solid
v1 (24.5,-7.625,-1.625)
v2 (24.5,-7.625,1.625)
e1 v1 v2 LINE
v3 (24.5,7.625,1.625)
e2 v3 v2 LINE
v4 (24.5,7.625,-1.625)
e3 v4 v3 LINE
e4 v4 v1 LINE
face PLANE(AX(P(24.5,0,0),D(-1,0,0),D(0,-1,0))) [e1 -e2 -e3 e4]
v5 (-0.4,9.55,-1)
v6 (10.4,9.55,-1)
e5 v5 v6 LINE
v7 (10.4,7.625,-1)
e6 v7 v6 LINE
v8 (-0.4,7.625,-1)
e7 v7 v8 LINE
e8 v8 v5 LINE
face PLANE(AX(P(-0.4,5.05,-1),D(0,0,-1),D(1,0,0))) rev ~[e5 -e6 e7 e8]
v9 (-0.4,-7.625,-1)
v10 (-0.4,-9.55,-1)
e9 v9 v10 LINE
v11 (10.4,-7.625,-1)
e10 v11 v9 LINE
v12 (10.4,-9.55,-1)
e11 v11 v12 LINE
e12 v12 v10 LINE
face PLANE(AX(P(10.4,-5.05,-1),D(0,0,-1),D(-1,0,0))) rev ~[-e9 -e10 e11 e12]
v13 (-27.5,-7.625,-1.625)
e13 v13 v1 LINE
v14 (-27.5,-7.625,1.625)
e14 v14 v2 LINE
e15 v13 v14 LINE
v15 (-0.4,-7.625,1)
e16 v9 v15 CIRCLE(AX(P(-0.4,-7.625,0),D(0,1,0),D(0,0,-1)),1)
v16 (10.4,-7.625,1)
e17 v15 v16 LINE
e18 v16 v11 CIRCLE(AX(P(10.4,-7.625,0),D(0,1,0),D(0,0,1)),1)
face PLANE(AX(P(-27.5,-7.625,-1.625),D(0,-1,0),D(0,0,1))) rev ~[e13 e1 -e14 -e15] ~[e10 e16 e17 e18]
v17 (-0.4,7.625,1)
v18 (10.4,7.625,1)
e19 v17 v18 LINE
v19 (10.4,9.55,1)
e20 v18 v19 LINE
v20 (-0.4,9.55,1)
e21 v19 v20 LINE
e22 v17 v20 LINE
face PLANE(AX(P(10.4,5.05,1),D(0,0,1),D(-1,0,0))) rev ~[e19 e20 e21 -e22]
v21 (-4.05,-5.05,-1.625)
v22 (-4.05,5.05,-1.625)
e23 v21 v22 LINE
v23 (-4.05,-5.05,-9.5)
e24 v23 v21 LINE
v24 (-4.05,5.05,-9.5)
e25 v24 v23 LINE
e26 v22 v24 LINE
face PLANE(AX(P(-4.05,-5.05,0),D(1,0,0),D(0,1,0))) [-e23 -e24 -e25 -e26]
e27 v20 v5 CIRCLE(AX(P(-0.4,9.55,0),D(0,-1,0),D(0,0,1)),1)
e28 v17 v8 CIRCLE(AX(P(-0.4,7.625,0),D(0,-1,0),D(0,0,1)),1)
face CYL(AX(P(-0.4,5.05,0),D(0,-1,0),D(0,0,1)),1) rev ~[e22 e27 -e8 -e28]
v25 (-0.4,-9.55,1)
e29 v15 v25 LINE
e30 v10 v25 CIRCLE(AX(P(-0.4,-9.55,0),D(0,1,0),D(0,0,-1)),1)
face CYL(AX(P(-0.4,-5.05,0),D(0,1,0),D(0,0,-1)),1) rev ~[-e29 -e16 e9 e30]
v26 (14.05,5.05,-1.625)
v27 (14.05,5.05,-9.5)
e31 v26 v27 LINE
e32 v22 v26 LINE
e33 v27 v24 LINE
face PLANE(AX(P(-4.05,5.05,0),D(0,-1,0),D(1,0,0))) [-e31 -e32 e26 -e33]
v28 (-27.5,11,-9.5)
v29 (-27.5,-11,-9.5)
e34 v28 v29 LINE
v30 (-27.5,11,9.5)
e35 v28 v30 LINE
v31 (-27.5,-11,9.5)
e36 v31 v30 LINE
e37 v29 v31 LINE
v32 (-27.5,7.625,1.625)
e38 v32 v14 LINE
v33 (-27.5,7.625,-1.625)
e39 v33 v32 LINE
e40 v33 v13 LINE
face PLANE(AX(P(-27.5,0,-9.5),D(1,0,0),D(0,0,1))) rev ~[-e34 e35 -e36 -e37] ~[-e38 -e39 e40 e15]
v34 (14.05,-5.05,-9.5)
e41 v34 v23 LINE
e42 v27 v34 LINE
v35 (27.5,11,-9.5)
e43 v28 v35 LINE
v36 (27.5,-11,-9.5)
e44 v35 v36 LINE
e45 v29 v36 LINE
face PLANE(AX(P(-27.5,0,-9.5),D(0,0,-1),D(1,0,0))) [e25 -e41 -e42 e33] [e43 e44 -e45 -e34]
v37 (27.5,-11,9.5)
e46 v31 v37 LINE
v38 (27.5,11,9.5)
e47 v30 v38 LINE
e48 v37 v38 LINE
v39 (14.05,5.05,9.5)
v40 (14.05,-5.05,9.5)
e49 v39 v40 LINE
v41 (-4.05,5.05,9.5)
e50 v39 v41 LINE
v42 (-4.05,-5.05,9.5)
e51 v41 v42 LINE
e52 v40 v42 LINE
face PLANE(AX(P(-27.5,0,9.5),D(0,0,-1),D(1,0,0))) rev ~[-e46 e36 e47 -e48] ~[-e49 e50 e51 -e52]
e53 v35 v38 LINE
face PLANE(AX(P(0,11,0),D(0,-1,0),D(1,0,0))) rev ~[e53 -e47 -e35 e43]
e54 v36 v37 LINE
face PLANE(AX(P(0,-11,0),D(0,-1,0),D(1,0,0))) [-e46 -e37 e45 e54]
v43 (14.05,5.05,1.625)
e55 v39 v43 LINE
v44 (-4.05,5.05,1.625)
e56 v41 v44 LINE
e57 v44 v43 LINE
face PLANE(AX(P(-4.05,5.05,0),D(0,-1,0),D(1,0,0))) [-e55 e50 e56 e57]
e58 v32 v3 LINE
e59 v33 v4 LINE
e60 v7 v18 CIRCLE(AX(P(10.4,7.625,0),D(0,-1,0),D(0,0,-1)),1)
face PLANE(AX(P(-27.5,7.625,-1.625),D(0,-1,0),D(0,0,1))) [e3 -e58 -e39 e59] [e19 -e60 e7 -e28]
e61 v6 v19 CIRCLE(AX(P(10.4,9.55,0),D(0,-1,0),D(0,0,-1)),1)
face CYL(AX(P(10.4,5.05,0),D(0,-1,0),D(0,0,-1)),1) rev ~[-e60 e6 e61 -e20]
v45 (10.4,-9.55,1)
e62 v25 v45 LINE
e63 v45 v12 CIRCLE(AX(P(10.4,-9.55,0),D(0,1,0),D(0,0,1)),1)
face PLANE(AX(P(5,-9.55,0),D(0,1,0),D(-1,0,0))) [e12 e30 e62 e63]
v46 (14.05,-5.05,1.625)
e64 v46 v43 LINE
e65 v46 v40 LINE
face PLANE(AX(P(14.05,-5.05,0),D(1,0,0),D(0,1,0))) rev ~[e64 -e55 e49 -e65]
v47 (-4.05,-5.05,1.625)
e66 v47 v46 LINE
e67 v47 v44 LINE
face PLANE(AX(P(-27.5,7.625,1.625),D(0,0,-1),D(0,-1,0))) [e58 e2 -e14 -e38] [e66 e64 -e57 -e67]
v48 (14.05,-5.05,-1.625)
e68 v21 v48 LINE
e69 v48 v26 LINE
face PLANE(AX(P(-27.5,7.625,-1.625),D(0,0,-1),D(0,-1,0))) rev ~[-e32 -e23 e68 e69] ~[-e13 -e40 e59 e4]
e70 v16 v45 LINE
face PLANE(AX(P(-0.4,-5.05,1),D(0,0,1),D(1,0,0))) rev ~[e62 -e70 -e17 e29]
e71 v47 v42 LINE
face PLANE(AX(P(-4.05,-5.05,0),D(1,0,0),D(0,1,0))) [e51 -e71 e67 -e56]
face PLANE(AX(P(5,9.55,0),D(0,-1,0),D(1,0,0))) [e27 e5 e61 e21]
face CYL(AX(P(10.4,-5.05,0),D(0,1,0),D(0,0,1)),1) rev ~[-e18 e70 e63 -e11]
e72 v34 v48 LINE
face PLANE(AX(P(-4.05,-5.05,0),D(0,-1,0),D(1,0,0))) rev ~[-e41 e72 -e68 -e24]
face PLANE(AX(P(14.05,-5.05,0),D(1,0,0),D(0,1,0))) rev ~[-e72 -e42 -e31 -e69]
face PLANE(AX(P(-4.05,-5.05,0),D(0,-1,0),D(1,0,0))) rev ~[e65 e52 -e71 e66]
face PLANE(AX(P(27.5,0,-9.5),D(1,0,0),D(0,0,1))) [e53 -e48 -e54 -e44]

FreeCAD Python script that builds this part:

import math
import FreeCAD as App
import Part
import Sketcher
from FreeCAD import Vector
Q = App.Units.Quantity

doc = App.newDocument("Part")
body = doc.addObject("PartDesign::Body", "Body")

# Sketch on XZ plane
sketch1 = body.newObject("Sketcher::SketchObject", "Sketch")
sketch1.AttachmentSupport = (doc.getObject("XZ_Plane"), [""])
sketch1.MapMode = "FlatFace"
sketch1.addGeometry([
    Part.LineSegment(Vector(-28, 10, 0), Vector(-28, -10, 0)),
    Part.LineSegment(Vector(-28, -10, 0), Vector(28, -10, 0)),
    Part.LineSegment(Vector(28, -10, 0), Vector(28, 10, 0)),
    Part.LineSegment(Vector(28, 10, 0), Vector(-28, 10, 0)),
], False)
sketch1.addConstraint([
    Sketcher.Constraint("Coincident", 0, 2, 1, 1),
    Sketcher.Constraint("Coincident", 1, 2, 2, 1),
    Sketcher.Constraint("Coincident", 2, 2, 3, 1),
    Sketcher.Constraint("Coincident", 3, 2, 0, 1),
    Sketcher.Constraint("Vertical", 0),
    Sketcher.Constraint("Horizontal", 1),
    Sketcher.Constraint("Vertical", 2),
    Sketcher.Constraint("Horizontal", 3),
    Sketcher.Constraint("Symmetric", 0, 2, 2, 2, -1, 1),
    Sketcher.Constraint("DistanceX", 1, 1, 1, 2, Q("55 mm")),
    Sketcher.Constraint("DistanceY", 0, 2, 0, 1, Q("19 mm")),
])
pad1 = body.newObject("PartDesign::Pad", "Pad")
pad1.Profile = sketch1
pad1.Length = 22
pad1.Midplane = True

# Sketch on XY plane
sketch2 = body.newObject("Sketcher::SketchObject", "Sketch001")
sketch2.AttachmentSupport = (doc.getObject("XY_Plane"), [""])
sketch2.MapMode = "FlatFace"
sketch2.addGeometry([
    Part.LineSegment(Vector(-4, 5, 0), Vector(-4, -5, 0)),
    Part.LineSegment(Vector(-4, -5, 0), Vector(14, -5, 0)),
    Part.LineSegment(Vector(14, -5, 0), Vector(14, 5, 0)),
    Part.LineSegment(Vector(14, 5, 0), Vector(-4, 5, 0)),
], False)
sketch2.addConstraint([
    Sketcher.Constraint("Coincident", 0, 2, 1, 1),
    Sketcher.Constraint("Coincident", 1, 2, 2, 1),
    Sketcher.Constraint("Coincident", 2, 2, 3, 1),
    Sketcher.Constraint("Coincident", 3, 2, 0, 1),
    Sketcher.Constraint("Vertical", 0),
    Sketcher.Constraint("Horizontal", 1),
    Sketcher.Constraint("Vertical", 2),
    Sketcher.Constraint("Horizontal", 3),
    Sketcher.Constraint("DistanceX", 1, 1, 1, 2, Q("18.1 mm")),
    Sketcher.Constraint("DistanceY", 0, 2, 0, 1, Q("10.1 mm")),
    Sketcher.Constraint("DistanceX", 0, 2, -1, 1, Q("4.05 mm")),
    Sketcher.Constraint("DistanceY", 0, 2, -1, 1, Q("5.05 mm")),
])
pocket1 = body.newObject("PartDesign::Pocket", "Pocket")
pocket1.Profile = sketch2
pocket1.Length = 22
pocket1.Midplane = True

# Sketch on XZ plane
sketch3 = body.newObject("Sketcher::SketchObject", "Sketch002")
sketch3.AttachmentSupport = (doc.getObject("XZ_Plane"), [""])
sketch3.MapMode = "FlatFace"
sketch3.AttachmentOffset = App.Placement(Vector(0, 0, -5.05), App.Rotation())
sketch3.addGeometry([
    Part.LineSegment(Vector(10.4, 1, 0), Vector(-0.4, 1, 0)),
    Part.ArcOfCircle(Part.Circle(Vector(-0.4, 0, 0), Vector(0, 0, 1), 1), math.radians(90), math.radians(270)),
    Part.LineSegment(Vector(-0.4, -1, 0), Vector(10.4, -1, 0)),
    Part.ArcOfCircle(Part.Circle(Vector(10.4, 0, 0), Vector(0, 0, 1), 1), math.radians(-90), math.radians(90)),
], False)
sketch3.addConstraint([
    Sketcher.Constraint("Tangent", 0, 2, 1, 1),
    Sketcher.Constraint("Tangent", 1, 2, 2, 1),
    Sketcher.Constraint("Tangent", 2, 2, 3, 1),
    Sketcher.Constraint("Tangent", 3, 2, 0, 1),
    Sketcher.Constraint("Horizontal", 0),
    Sketcher.Constraint("Horizontal", 2),
    Sketcher.Constraint("PointOnObject", 1, 3, -1),
    Sketcher.Constraint("Radius", 1, Q("1 mm")),
    Sketcher.Constraint("DistanceX", 0, 2, 0, 1, Q("10.8 mm")),
    Sketcher.Constraint("DistanceX", 1, 3, -1, 1, Q("0.4 mm")),
])
pocket2 = body.newObject("PartDesign::Pocket", "Pocket001")
pocket2.Profile = sketch3
pocket2.Length = 4.5

# Sketch on XZ plane
sketch4 = body.newObject("Sketcher::SketchObject", "Sketch003")
sketch4.AttachmentSupport = (doc.getObject("XZ_Plane"), [""])
sketch4.MapMode = "FlatFace"
sketch4.AttachmentOffset = App.Placement(Vector(0, 0, 5.05), App.Rotation())
sketch4.addGeometry([
    Part.ArcOfCircle(Part.Circle(Vector(10.4, 0, 0), Vector(0, 0, 1), 1), math.radians(-90), math.radians(90)),
    Part.LineSegment(Vector(10.4, -1, 0), Vector(-0.4, -1, 0)),
    Part.ArcOfCircle(Part.Circle(Vector(-0.4, 0, 0), Vector(0, 0, 1), 1), math.radians(90), math.radians(270)),
    Part.LineSegment(Vector(-0.4, 1, 0), Vector(10.4, 1, 0)),
], False)
sketch4.addConstraint([
    Sketcher.Constraint("Tangent", 0, 1, 1, 1),
    Sketcher.Constraint("Tangent", 1, 2, 2, 2),
    Sketcher.Constraint("Tangent", 2, 1, 3, 1),
    Sketcher.Constraint("Tangent", 3, 2, 0, 2),
    Sketcher.Constraint("Horizontal", 1),
    Sketcher.Constraint("Horizontal", 3),
    Sketcher.Constraint("PointOnObject", 0, 3, -1),
    Sketcher.Constraint("Radius", 0, Q("1 mm")),
    Sketcher.Constraint("DistanceX", 1, 2, 1, 1, Q("10.8 mm")),
    Sketcher.Constraint("DistanceX", -1, 1, 0, 3, Q("10.4 mm")),
])
pocket3 = body.newObject("PartDesign::Pocket", "Pocket002")
pocket3.Profile = sketch4
pocket3.Length = 4.5
pocket3.Reversed = True

# Sketch on YZ plane
sketch5 = body.newObject("Sketcher::SketchObject", "Sketch004")
sketch5.AttachmentSupport = (doc.getObject("YZ_Plane"), [""])
sketch5.MapMode = "FlatFace"
sketch5.AttachmentOffset = App.Placement(Vector(0, 0, -27.5), App.Rotation())
sketch5.addGeometry([
    Part.LineSegment(Vector(7.6, 1.6, 0), Vector(7.6, -1.6, 0)),
    Part.LineSegment(Vector(7.6, -1.6, 0), Vector(-7.6, -1.6, 0)),
    Part.LineSegment(Vector(-7.6, -1.6, 0), Vector(-7.6, 1.6, 0)),
    Part.LineSegment(Vector(-7.6, 1.6, 0), Vector(7.6, 1.6, 0)),
], False)
sketch5.addConstraint([
    Sketcher.Constraint("Coincident", 0, 2, 1, 1),
    Sketcher.Constraint("Coincident", 1, 2, 2, 1),
    Sketcher.Constraint("Coincident", 2, 2, 3, 1),
    Sketcher.Constraint("Coincident", 3, 2, 0, 1),
    Sketcher.Constraint("Vertical", 0),
    Sketcher.Constraint("Horizontal", 1),
    Sketcher.Constraint("Vertical", 2),
    Sketcher.Constraint("Horizontal", 3),
    Sketcher.Constraint("Symmetric", 0, 2, 2, 2, -1, 1),
    Sketcher.Constraint("DistanceX", 1, 2, 1, 1, Q("15.25 mm")),
    Sketcher.Constraint("DistanceY", 0, 2, 0, 1, Q("3.25 mm")),
])
pocket4 = body.newObject("PartDesign::Pocket", "Pocket003")
pocket4.Profile = sketch5
pocket4.Length = 52
pocket4.Reversed = True

doc.recompute()
